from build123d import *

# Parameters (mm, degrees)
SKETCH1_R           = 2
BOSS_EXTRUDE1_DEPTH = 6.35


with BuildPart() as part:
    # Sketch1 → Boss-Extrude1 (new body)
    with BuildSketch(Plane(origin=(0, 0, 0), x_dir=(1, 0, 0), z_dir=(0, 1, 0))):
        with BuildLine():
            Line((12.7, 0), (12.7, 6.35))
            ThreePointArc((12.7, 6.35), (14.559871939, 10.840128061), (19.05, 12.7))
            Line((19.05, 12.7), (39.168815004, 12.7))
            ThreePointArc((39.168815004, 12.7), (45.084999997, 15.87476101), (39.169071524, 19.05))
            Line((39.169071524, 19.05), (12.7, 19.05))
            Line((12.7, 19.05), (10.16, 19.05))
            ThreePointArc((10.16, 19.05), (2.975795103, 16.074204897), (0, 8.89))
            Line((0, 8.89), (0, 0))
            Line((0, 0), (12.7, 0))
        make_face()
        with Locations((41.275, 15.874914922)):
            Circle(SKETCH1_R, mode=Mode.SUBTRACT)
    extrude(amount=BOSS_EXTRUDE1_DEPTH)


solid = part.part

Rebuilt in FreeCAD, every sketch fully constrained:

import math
import FreeCAD as App
import Part
import Sketcher
from FreeCAD import Vector
Q = App.Units.Quantity

doc = App.newDocument("Part")
params = doc.addObject("Spreadsheet::Sheet", "Params")
for row, (alias, value) in enumerate([
    ("sketch1_radius", "0.4 in"),
    ("sketch1_radius2", "0.25 in"),
    ("sketch1_radius3", "0.15 in"),
    ("sketch1_width", "0.5 in"),
    ("sketch1_height", "0.25 in"),
    ("pad1_length", "0.25 in"),
], start=1):
    params.set(f"A{row}", alias)
    params.set(f"B{row}", "=" + value)
    params.setAlias(f"B{row}", alias)

body = doc.addObject("PartDesign::Body", "Body")

# Sketch on XZ plane
sketch1 = doc.addObject("Sketcher::SketchObject", "Sketch")
body.addObject(sketch1)
sketch1.AttachmentSupport = (doc.XZ_Plane, [""])
sketch1.MapMode = "FlatFace"
sketch1.addGeometry([
    Part.LineSegment(Vector(12.7, 0, 0), Vector(12.7, -6.3, 0)),  # 0
    Part.ArcOfCircle(Part.Circle(Vector(19, -6.4, 0), Vector(0, 0, 1), 6.3), math.radians(180), math.radians(270)),  # 1
    Part.LineSegment(Vector(19.1, -12.7, 0), Vector(39.2, -12.7, 0)),  # 2
    Part.ArcOfCircle(Part.Circle(Vector(41.3, -15.9, 0), Vector(0, 0, 1), 3.8), math.radians(-124), math.radians(124)),  # 3
    Part.LineSegment(Vector(39.2, -19.1, 0), Vector(10.2, -19.1, 0)),  # 4
    Part.ArcOfCircle(Part.Circle(Vector(10.2, -8.9, 0), Vector(0, 0, 1), 10.2), math.radians(180), math.radians(270)),  # 5
    Part.LineSegment(Vector(0, -8.9, 0), Vector(0, 0, 0)),  # 6
    Part.LineSegment(Vector(0, 0, 0), Vector(12.7, 0, 0)),  # 7
    Part.Circle(Vector(41.3, -15.9, 0), Vector(0, 0, 1), 2),  # 8
], False)
sketch1.addConstraint([
    Sketcher.Constraint("Tangent", 0, 2, 1, 1),
    Sketcher.Constraint("Tangent", 1, 2, 2, 1),
    Sketcher.Constraint("Coincident", 2, 2, 3, 2),
    Sketcher.Constraint("Coincident", 3, 1, 4, 1),
    Sketcher.Constraint("Tangent", 4, 2, 5, 2),
    Sketcher.Constraint("Tangent", 5, 1, 6, 1),
    Sketcher.Constraint("Coincident", 6, 2, 7, 1),
    Sketcher.Constraint("Coincident", 7, 2, 0, 1),
    Sketcher.Constraint("Vertical", 0),
    Sketcher.Constraint("Horizontal", 2),
    Sketcher.Constraint("Horizontal", 4),
    Sketcher.Constraint("Vertical", 6),
    Sketcher.Constraint("Horizontal", 7),
    Sketcher.Constraint("Coincident", 6, 2, -1, 1),
    Sketcher.Constraint("Coincident", 8, 3, 3, 3),
    Sketcher.Constraint("Radius", 5, Q("0.4 in")),
    Sketcher.Constraint("Radius", 1, Q("0.25 in")),
    Sketcher.Constraint("Radius", 3, Q("0.15 in")),
    Sketcher.Constraint("DistanceX", 7, 1, 7, 2, Q("0.5 in")),
    Sketcher.Constraint("DistanceY", 0, 2, 0, 1, Q("0.25 in")),
    Sketcher.Constraint("DistanceY", 6, 1, 6, 2, Q("0.35 in")),
    Sketcher.Constraint("Diameter", 8, Q("4 mm")),
    Sketcher.Constraint("DistanceX", -1, 1, 3, 3, Q("1.625 in")),
    Sketcher.Constraint("DistanceX", 4, 2, 4, 1, Q("29.009072 mm")),
])
sketch1.setExpression("Constraints[15]", "Params.sketch1_radius")
sketch1.setExpression("Constraints[16]", "Params.sketch1_radius2")
sketch1.setExpression("Constraints[17]", "Params.sketch1_radius3")
sketch1.setExpression("Constraints[18]", "Params.sketch1_width")
sketch1.setExpression("Constraints[19]", "Params.sketch1_height")
pad1 = doc.addObject("PartDesign::Pad", "Pad")
body.addObject(pad1)
pad1.Profile = sketch1
pad1.setExpression("Length", "Params.pad1_length")
pad1.Reversed = True

doc.recompute()
